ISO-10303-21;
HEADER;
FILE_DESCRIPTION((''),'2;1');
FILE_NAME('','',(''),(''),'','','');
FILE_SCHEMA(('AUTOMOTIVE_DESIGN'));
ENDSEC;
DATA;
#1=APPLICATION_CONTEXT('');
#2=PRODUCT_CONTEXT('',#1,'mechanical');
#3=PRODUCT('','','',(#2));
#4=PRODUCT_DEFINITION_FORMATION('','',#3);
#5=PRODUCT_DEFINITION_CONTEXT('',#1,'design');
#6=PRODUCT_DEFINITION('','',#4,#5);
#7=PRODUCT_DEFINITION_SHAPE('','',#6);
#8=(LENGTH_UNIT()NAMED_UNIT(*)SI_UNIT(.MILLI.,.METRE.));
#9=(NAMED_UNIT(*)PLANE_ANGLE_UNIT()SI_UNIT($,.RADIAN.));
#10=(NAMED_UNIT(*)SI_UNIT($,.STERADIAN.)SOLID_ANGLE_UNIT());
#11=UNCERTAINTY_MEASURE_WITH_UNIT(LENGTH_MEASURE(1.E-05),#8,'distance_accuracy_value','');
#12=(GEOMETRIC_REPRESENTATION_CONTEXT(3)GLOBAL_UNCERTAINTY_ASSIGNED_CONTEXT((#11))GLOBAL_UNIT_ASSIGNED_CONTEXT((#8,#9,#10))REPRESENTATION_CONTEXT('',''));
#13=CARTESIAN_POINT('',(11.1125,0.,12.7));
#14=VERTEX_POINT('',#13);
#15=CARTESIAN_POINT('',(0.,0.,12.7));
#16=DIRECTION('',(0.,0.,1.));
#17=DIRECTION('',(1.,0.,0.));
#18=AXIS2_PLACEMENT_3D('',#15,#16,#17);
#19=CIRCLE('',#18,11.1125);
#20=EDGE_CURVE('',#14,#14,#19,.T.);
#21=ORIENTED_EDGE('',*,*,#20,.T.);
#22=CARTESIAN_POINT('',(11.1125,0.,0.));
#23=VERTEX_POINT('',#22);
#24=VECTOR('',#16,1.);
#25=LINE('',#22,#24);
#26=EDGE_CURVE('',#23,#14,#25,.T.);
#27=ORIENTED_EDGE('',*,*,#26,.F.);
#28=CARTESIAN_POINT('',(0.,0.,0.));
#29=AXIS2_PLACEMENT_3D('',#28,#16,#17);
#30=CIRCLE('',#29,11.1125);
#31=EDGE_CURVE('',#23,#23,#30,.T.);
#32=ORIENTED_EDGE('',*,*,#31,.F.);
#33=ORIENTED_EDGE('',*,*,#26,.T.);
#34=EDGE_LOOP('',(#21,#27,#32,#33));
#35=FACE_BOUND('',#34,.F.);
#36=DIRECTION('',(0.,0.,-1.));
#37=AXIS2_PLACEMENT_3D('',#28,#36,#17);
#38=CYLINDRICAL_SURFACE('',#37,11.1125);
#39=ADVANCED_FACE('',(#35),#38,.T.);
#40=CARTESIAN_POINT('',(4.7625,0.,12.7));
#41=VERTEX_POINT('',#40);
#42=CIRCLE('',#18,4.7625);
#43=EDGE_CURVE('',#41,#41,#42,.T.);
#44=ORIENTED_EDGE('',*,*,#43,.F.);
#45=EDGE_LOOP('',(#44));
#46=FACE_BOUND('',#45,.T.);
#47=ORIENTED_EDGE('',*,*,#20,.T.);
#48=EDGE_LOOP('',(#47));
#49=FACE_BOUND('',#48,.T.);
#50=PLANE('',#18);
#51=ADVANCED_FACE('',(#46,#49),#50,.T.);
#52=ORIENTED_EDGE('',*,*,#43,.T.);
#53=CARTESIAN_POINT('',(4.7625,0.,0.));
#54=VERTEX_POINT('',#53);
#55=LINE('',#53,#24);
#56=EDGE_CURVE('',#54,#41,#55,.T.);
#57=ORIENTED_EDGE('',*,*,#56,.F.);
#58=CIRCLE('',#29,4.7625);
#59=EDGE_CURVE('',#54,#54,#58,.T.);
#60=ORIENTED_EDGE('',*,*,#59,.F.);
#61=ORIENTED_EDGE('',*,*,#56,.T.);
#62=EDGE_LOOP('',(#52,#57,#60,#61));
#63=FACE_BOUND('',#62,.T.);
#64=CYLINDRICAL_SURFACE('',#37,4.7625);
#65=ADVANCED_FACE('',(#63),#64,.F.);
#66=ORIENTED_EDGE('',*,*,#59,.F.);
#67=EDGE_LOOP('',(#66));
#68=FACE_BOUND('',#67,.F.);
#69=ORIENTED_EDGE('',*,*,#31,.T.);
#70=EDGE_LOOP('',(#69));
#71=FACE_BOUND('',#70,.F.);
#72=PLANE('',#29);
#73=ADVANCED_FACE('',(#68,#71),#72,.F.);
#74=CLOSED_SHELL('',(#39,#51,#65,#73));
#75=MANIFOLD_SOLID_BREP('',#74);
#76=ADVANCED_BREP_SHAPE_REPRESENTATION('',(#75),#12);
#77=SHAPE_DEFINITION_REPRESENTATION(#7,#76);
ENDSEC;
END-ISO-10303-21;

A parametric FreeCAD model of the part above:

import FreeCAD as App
import Part
import Sketcher
from FreeCAD import Vector
Q = App.Units.Quantity

doc = App.newDocument("Part")
body = doc.addObject("PartDesign::Body", "Body")

# Sketch on XY plane
sketch1 = body.newObject("Sketcher::SketchObject", "Sketch")
sketch1.AttachmentSupport = (doc.getObject("XY_Plane"), [""])
sketch1.MapMode = "FlatFace"
sketch1.addGeometry([
    Part.Circle(Vector(0, 0, 0), Vector(0, 0, 1), 11.1125),
    Part.Circle(Vector(0, 0, 0), Vector(0, 0, 1), 4.7625),
], False)
sketch1.addConstraint([
    Sketcher.Constraint("Coincident", 0, 3, -1, 1),
    Sketcher.Constraint("Coincident", 1, 3, -1, 1),
    Sketcher.Constraint("Diameter", 0, Q("0.875 in")),
    Sketcher.Constraint("Diameter", 1, Q("0.375 in")),
])
pad1 = body.newObject("PartDesign::Pad", "Pad")
pad1.Profile = sketch1
pad1.Length = Q("0.5 in")

doc.recompute()
